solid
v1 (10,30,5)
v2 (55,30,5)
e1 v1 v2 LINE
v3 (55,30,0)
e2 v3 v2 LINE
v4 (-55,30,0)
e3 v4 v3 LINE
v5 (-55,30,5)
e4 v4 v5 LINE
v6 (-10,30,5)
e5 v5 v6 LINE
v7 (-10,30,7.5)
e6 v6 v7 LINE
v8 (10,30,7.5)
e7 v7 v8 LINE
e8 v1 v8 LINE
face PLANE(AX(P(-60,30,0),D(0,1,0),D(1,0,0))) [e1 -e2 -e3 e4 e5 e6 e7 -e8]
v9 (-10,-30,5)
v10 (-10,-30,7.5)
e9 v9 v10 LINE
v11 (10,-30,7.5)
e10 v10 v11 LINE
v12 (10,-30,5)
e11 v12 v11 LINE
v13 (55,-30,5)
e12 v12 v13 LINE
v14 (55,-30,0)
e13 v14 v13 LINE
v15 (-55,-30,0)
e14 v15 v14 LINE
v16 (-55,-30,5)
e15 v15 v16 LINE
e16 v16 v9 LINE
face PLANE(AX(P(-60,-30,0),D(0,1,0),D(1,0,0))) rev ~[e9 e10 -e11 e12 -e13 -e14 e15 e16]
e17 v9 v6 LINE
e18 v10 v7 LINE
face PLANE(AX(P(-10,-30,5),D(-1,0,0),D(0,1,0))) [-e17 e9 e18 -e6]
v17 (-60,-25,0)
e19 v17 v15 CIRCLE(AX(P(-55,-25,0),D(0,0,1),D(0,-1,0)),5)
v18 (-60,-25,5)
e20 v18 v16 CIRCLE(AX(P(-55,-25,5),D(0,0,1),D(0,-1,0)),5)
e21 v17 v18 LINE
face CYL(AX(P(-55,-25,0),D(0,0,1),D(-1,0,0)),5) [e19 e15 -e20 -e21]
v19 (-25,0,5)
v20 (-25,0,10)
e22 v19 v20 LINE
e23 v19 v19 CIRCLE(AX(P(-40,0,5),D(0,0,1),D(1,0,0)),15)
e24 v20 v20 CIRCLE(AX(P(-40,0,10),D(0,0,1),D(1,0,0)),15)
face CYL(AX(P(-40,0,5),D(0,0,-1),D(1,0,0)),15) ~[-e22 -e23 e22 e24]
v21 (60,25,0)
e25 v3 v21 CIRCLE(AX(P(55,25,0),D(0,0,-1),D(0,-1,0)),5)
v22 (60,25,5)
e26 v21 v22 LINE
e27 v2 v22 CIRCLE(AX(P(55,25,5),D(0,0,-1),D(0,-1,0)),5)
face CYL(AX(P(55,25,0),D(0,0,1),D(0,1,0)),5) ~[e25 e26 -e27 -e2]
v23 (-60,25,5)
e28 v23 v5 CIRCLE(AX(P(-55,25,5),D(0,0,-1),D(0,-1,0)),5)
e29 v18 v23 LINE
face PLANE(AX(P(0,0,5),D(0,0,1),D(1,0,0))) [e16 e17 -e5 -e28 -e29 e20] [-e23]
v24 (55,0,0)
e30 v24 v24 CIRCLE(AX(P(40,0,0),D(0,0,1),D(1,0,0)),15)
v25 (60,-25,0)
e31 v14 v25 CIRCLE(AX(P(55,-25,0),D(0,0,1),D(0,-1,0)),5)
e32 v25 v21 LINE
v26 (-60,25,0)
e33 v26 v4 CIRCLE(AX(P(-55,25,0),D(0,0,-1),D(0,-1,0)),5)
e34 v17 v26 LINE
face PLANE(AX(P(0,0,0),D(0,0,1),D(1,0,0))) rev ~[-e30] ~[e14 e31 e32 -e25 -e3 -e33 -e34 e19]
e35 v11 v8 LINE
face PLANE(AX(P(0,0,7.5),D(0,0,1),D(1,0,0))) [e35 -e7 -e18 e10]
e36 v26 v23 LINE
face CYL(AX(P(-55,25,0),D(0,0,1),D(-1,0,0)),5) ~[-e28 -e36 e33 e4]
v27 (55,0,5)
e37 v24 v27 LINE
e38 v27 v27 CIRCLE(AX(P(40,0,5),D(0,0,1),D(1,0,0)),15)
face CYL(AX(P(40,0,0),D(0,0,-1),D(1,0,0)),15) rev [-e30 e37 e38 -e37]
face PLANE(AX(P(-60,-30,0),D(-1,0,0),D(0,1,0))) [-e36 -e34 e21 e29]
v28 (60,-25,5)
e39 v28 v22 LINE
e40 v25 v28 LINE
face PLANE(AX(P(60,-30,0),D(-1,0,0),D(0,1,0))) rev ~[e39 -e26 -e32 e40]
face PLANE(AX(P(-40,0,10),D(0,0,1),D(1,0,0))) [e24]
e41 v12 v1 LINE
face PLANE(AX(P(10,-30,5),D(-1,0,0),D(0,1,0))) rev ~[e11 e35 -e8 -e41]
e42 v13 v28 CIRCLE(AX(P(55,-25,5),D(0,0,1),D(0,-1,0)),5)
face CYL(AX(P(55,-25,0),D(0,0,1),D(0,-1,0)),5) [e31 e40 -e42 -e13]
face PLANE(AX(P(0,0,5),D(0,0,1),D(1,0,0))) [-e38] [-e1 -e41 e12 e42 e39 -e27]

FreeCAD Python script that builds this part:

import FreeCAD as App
import Part
import Sketcher

V = App.Vector
Q = App.Units.Quantity


def edges_at(feature, points):
    """Names of the edges that pass closest to the given points."""
    edges = feature.Shape.Edges
    near = lambda p: min(range(len(edges)), key=lambda i: edges[i].distToShape(Part.Vertex(*p))[0])
    return sorted({f"Edge{near(p) + 1}" for p in points})


def add_polygon(sketch, points):
    """Adds a closed chain of lines whose ends are joined by coincident constraints."""
    first, n = sketch.GeometryCount, len(points)
    for a, b in zip(points, points[1:] + points[:1]):
        sketch.addGeometry(Part.LineSegment(App.Vector(*a, 0), App.Vector(*b, 0)), False)
    for i in range(n):
        sketch.addConstraint(Sketcher.Constraint("Coincident", first + i, 2, first + (i + 1) % n, 1))

doc = App.newDocument("Part")
params = doc.addObject("Spreadsheet::Sheet", "Params")
for row, (alias, value) in enumerate([
    ("sketch1_diameter", "30 mm"),
    ("sketch1_width", "120 mm"),
    ("sketch1_height", "60 mm"),
    ("pad1_length", "5 mm"),
    ("fillet_radius", "5 mm"),
    ("sketch2_diameter", "30 mm"),
    ("pad2_length", "5 mm"),
    ("sketch3_width", "20 mm"),
    ("sketch3_height", "60 mm"),
    ("pad3_length", "2.5 mm"),
], start=1):
    params.set(f"A{row}", alias)
    params.set(f"B{row}", "=" + value)
    params.setAlias(f"B{row}", alias)

body = doc.addObject("PartDesign::Body", "Body")

# Sketch on XY plane
sketch1 = body.newObject("Sketcher::SketchObject", "Sketch")
sketch1.AttachmentSupport = (doc.getObject("XY_Plane"), [""])
sketch1.MapMode = "FlatFace"
add_polygon(sketch1, [(-60, 30), (-60, -30), (60, -30), (60, 30)])  # lines 0-3
sketch1.addGeometry(Part.Circle(V(40, 0, 0), V(0, 0, 1), 15), False)  # 4
sketch1.addConstraint([
    Sketcher.Constraint("Vertical", 0),
    Sketcher.Constraint("Horizontal", 1),
    Sketcher.Constraint("Vertical", 2),
    Sketcher.Constraint("Horizontal", 3),
    Sketcher.Constraint("Symmetric", 0, 2, 2, 2, -1, 1),
    Sketcher.Constraint("PointOnObject", 4, 3, -1),
    Sketcher.Constraint("Diameter", 4, Q("30 mm")),
    Sketcher.Constraint("DistanceX", 1, 1, 1, 2, Q("120 mm")),
    Sketcher.Constraint("DistanceY", 0, 2, 0, 1, Q("60 mm")),
    Sketcher.Constraint("DistanceX", -1, 1, 4, 3, Q("40 mm")),
])
sketch1.setExpression("Constraints[10]", "Params.sketch1_diameter")
sketch1.setExpression("Constraints[11]", "Params.sketch1_width")
sketch1.setExpression("Constraints[12]", "Params.sketch1_height")
pad1 = body.newObject("PartDesign::Pad", "Pad")
pad1.Profile = sketch1
pad1.setExpression("Length", "Params.pad1_length")
doc.recompute()

fillet = body.newObject("PartDesign::Fillet", "Fillet")
fillet.Base = (pad1, edges_at(pad1, [
    (60, 30, 2.5),
    (60, -30, 2.5),
    (-60, -30, 2.5),
    (-60, 30, 2.5),
]))
fillet.setExpression("Radius", "Params.fillet_radius")

# Sketch on XY plane
sketch2 = body.newObject("Sketcher::SketchObject", "Sketch001")
sketch2.AttachmentSupport = (doc.getObject("XY_Plane"), [""])
sketch2.MapMode = "FlatFace"
sketch2.AttachmentOffset = App.Placement(V(0, 0, 5), App.Rotation())
sketch2.addGeometry(Part.Circle(V(-40, 0, 0), V(0, 0, 1), 15), False)
sketch2.addConstraint([
    Sketcher.Constraint("PointOnObject", 0, 3, -1),
    Sketcher.Constraint("Diameter", 0, Q("30 mm")),
    Sketcher.Constraint("DistanceX", 0, 3, -1, 1, Q("40 mm")),
])
sketch2.setExpression("Constraints[1]", "Params.sketch2_diameter")
pad2 = body.newObject("PartDesign::Pad", "Pad001")
pad2.Profile = sketch2
pad2.setExpression("Length", "Params.pad2_length")

# Sketch on XY plane
sketch3 = body.newObject("Sketcher::SketchObject", "Sketch002")
sketch3.AttachmentSupport = (doc.getObject("XY_Plane"), [""])
sketch3.MapMode = "FlatFace"
sketch3.AttachmentOffset = App.Placement(V(0, 0, 5), App.Rotation())
add_polygon(sketch3, [(-10, 30), (-10, -30), (10, -30), (10, 30)])  # lines 0-3
sketch3.addConstraint([
    Sketcher.Constraint("Vertical", 0),
    Sketcher.Constraint("Horizontal", 1),
    Sketcher.Constraint("Vertical", 2),
    Sketcher.Constraint("Horizontal", 3),
    Sketcher.Constraint("Symmetric", 0, 2, 2, 2, -1, 1),
    Sketcher.Constraint("DistanceX", 1, 1, 1, 2, Q("20 mm")),
    Sketcher.Constraint("DistanceY", 0, 2, 0, 1, Q("60 mm")),
])
sketch3.setExpression("Constraints[9]", "Params.sketch3_width")
sketch3.setExpression("Constraints[10]", "Params.sketch3_height")
pad3 = body.newObject("PartDesign::Pad", "Pad002")
pad3.Profile = sketch3
pad3.setExpression("Length", "Params.pad3_length")

doc.recompute()
